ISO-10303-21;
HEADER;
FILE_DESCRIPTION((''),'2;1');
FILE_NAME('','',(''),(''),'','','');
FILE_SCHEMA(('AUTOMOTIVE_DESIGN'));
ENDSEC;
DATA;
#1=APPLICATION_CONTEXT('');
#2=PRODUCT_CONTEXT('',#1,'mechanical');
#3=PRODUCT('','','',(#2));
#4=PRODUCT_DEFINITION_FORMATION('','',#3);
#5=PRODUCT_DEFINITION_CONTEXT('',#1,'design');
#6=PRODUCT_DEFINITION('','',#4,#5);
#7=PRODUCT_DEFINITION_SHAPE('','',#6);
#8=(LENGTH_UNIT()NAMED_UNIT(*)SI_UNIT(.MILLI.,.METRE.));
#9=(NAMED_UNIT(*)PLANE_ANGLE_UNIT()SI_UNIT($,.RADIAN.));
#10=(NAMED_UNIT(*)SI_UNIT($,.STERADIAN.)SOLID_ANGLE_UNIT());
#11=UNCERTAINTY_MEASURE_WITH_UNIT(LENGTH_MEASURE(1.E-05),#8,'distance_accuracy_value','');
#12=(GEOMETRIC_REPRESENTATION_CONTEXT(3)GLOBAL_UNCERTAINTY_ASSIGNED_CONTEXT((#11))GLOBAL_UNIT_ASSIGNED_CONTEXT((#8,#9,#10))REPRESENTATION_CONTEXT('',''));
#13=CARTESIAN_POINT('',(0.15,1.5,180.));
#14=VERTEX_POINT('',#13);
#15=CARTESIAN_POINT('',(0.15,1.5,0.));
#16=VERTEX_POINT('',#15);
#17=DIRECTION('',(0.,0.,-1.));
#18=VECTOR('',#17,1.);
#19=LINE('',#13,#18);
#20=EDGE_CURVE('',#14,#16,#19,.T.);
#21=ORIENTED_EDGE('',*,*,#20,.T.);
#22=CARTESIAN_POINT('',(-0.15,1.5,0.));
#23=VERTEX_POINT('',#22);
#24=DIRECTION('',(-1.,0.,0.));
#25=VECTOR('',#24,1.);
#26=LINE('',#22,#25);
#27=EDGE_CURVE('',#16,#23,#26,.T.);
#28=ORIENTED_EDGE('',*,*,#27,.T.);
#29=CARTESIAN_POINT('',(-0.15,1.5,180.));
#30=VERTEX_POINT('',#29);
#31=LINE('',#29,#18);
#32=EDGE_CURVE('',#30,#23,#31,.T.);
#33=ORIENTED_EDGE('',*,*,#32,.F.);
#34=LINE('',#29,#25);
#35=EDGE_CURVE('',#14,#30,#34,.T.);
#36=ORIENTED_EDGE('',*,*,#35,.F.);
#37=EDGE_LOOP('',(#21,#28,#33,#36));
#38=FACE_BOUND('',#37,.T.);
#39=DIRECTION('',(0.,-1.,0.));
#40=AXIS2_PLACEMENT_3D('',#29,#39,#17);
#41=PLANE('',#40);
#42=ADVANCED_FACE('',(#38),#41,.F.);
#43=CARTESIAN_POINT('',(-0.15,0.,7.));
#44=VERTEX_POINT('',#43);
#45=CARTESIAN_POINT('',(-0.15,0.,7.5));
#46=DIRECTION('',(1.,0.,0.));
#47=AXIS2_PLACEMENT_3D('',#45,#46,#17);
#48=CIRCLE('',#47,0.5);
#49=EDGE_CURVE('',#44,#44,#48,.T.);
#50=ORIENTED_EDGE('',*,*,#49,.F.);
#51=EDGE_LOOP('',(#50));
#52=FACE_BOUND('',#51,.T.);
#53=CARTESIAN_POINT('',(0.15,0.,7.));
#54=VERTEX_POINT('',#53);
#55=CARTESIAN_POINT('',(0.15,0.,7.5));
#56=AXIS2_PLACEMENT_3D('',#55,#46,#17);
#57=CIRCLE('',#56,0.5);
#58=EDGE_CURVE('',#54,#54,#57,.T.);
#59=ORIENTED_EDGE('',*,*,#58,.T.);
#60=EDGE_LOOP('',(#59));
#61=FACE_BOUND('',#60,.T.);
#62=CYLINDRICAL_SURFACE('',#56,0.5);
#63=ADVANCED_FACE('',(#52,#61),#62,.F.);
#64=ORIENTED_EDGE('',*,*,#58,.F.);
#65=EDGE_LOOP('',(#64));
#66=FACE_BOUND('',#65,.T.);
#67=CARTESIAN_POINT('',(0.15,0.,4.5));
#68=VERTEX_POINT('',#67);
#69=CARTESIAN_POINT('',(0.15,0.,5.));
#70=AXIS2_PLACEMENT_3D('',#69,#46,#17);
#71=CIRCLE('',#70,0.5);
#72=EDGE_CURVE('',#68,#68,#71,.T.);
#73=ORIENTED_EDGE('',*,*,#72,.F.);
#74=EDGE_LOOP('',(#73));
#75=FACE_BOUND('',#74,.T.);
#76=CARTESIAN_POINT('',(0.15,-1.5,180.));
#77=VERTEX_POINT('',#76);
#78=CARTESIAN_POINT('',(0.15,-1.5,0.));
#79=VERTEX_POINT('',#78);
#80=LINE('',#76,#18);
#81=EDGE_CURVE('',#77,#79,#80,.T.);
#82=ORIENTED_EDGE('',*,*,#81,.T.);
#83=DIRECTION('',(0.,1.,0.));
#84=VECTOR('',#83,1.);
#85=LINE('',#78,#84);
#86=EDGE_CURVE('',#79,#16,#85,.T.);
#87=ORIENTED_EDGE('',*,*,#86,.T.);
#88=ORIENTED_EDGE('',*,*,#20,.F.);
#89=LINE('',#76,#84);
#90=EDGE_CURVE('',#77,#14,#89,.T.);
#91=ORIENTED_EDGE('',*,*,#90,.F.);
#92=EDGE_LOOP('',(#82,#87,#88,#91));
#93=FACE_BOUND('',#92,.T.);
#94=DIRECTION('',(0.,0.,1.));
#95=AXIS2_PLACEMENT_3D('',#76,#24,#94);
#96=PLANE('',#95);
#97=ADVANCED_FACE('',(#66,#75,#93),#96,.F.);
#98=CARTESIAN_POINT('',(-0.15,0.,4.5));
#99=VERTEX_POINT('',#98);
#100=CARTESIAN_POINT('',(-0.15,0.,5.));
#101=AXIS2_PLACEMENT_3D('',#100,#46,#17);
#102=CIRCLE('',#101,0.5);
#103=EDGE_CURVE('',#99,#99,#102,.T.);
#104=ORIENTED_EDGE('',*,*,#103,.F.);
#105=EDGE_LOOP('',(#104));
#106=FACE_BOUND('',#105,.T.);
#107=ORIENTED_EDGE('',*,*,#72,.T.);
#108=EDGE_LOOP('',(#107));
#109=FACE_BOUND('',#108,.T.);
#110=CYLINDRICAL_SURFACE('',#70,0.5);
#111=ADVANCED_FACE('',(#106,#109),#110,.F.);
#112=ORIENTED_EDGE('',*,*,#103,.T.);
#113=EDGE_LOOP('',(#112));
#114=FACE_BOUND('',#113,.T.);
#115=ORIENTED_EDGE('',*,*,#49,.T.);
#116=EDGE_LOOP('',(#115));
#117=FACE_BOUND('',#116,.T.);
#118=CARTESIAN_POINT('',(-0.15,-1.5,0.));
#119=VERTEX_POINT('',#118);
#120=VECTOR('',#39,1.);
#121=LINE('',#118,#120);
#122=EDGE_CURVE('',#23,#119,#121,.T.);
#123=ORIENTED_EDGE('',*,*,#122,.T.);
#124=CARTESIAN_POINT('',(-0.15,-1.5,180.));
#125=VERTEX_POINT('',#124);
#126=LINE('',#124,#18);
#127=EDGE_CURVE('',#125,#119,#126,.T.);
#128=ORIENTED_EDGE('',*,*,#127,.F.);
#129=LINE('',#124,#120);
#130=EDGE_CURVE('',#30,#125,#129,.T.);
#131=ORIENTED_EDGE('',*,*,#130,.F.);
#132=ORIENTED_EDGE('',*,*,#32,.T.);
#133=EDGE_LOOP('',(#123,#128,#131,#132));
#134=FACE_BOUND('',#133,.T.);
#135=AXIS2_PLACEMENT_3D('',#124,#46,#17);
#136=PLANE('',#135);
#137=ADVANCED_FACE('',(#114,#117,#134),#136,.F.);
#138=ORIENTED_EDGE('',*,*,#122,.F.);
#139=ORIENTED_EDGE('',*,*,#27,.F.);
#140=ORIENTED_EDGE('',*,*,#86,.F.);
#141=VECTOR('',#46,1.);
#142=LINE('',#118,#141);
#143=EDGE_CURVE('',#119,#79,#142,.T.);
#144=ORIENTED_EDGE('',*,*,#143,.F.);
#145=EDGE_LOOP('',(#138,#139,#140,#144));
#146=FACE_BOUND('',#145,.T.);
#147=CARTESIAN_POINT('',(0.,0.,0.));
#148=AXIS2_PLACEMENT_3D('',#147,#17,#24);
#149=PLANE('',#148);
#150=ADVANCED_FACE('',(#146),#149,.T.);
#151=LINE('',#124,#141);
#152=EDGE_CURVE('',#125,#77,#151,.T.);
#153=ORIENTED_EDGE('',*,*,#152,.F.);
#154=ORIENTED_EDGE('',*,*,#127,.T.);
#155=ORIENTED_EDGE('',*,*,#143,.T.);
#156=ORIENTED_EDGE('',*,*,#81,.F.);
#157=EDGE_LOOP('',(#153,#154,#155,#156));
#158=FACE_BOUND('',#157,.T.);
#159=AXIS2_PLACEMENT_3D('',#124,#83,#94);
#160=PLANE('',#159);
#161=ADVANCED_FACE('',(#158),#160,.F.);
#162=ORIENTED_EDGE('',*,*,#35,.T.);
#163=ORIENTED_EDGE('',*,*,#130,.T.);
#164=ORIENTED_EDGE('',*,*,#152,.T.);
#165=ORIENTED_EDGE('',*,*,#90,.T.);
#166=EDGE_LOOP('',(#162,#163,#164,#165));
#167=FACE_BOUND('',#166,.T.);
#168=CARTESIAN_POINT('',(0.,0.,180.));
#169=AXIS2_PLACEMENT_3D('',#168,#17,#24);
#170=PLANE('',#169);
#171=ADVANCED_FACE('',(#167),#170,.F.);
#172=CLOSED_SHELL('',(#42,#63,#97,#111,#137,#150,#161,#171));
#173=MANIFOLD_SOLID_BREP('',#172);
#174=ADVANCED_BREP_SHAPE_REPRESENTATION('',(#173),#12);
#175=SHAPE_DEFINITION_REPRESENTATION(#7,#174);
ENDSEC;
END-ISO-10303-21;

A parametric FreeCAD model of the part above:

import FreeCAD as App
import Part
import Sketcher
Q = App.Units.Quantity

doc = App.newDocument("Part")
body = doc.addObject("PartDesign::Body", "Body")

# Sketch on XY plane
sketch1 = body.newObject("Sketcher::SketchObject", "Sketch")
sketch1.AttachmentSupport = (doc.getObject("XY_Plane"), [""])
sketch1.MapMode = "FlatFace"
sketch1.addGeometry([
    Part.LineSegment(App.Vector(-0.15, 1.5, 0), App.Vector(-0.15, -1.5, 0)),
    Part.LineSegment(App.Vector(-0.15, -1.5, 0), App.Vector(0.15, -1.5, 0)),
    Part.LineSegment(App.Vector(0.15, -1.5, 0), App.Vector(0.15, 1.5, 0)),
    Part.LineSegment(App.Vector(0.15, 1.5, 0), App.Vector(-0.15, 1.5, 0)),
], False)
sketch1.addConstraint([
    Sketcher.Constraint("Coincident", 0, 2, 1, 1),
    Sketcher.Constraint("Coincident", 1, 2, 2, 1),
    Sketcher.Constraint("Coincident", 2, 2, 3, 1),
    Sketcher.Constraint("Coincident", 3, 2, 0, 1),
    Sketcher.Constraint("Vertical", 0),
    Sketcher.Constraint("Horizontal", 1),
    Sketcher.Constraint("Vertical", 2),
    Sketcher.Constraint("Horizontal", 3),
    Sketcher.Constraint("Symmetric", 0, 2, 2, 2, -1, 1),
    Sketcher.Constraint("DistanceY", 0, 2, 0, 1, Q("3 mm")),
    Sketcher.Constraint("DistanceX", 1, 1, 1, 2, Q("0.3 mm")),
])
pad1 = body.newObject("PartDesign::Pad", "Pad")
pad1.Profile = sketch1
pad1.Length = 180

# Sketch on YZ plane
sketch2 = body.newObject("Sketcher::SketchObject", "Sketch001")
sketch2.AttachmentSupport = (doc.getObject("YZ_Plane"), [""])
sketch2.MapMode = "FlatFace"
sketch2.AttachmentOffset = App.Placement(App.Vector(0, 0, 0.15), App.Rotation())
sketch2.addGeometry([
    Part.Circle(App.Vector(0, 7.5, 0), App.Vector(0, 0, 1), 0.5),
    Part.Circle(App.Vector(0, 5, 0), App.Vector(0, 0, 1), 0.5),
], False)
sketch2.addConstraint([
    Sketcher.Constraint("Equal", 0, 1),
    Sketcher.Constraint("PointOnObject", 0, 3, -2),
    Sketcher.Constraint("PointOnObject", 1, 3, -2),
    Sketcher.Constraint("Diameter", 0, Q("1 mm")),
    Sketcher.Constraint("DistanceY", -1, 1, 1, 3, Q("5 mm")),
    Sketcher.Constraint("DistanceY", -1, 1, 0, 3, Q("7.5 mm")),
])
doc.recompute()
hole = body.newObject("PartDesign::Hole", "Hole")
hole.Profile = sketch2
hole.ThreadType = "None"
hole.Diameter = 1
hole.DepthType = "ThroughAll"

doc.recompute()
